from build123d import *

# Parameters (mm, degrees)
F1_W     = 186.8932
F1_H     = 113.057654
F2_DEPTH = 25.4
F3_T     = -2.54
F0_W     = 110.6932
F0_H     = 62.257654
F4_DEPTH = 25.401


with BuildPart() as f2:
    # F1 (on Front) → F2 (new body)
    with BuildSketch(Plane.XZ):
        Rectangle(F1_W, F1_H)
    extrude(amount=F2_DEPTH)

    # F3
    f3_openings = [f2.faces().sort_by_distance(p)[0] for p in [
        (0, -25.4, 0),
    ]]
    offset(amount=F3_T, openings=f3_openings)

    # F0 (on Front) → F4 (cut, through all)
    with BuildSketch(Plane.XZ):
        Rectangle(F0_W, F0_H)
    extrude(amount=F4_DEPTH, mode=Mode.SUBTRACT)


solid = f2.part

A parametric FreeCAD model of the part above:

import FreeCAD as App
import Part
import Sketcher

V = App.Vector
Q = App.Units.Quantity


def faces_at(feature, points):
    """Names of the faces that lie closest to the given points."""
    faces = feature.Shape.Faces
    near = lambda p: min(range(len(faces)), key=lambda i: faces[i].distToShape(Part.Vertex(*p))[0])
    return sorted({f"Face{near(p) + 1}" for p in points})


def add_polygon(sketch, points):
    """Adds a closed chain of lines whose ends are joined by coincident constraints."""
    first, n = sketch.GeometryCount, len(points)
    for a, b in zip(points, points[1:] + points[:1]):
        sketch.addGeometry(Part.LineSegment(App.Vector(*a, 0), App.Vector(*b, 0)), False)
    for i in range(n):
        sketch.addConstraint(Sketcher.Constraint("Coincident", first + i, 2, first + (i + 1) % n, 1))

doc = App.newDocument("Part")
body = doc.addObject("PartDesign::Body", "Body")

# Sketch on XZ plane
sketch1 = body.newObject("Sketcher::SketchObject", "Sketch")
sketch1.AttachmentSupport = (doc.getObject("XZ_Plane"), [""])
sketch1.MapMode = "FlatFace"
add_polygon(sketch1, [(-93, 57), (-93, -57), (93, -57), (93, 57)])  # lines 0-3
sketch1.addConstraint([
    Sketcher.Constraint("Vertical", 0),
    Sketcher.Constraint("Horizontal", 1),
    Sketcher.Constraint("Vertical", 2),
    Sketcher.Constraint("Horizontal", 3),
    Sketcher.Constraint("Symmetric", 0, 2, 2, 2, -1, 1),
    Sketcher.Constraint("DistanceX", 1, 1, 1, 2, Q("7.358 in")),
    Sketcher.Constraint("DistanceY", 0, 2, 0, 1, Q("113.057654 mm")),
])
pad1 = body.newObject("PartDesign::Pad", "Pad")
pad1.Profile = sketch1
pad1.Length = Q("1 in")
doc.recompute()

thickness = body.newObject("PartDesign::Thickness", "Thickness")
thickness.Base = (pad1, faces_at(pad1, [(0, -25.4, 0)]))
thickness.Value = Q("0.1 in")
thickness.Reversed = True
thickness.Join = "Arc"

# Sketch on XZ plane
sketch2 = body.newObject("Sketcher::SketchObject", "Sketch001")
sketch2.AttachmentSupport = (doc.getObject("XZ_Plane"), [""])
sketch2.MapMode = "FlatFace"
add_polygon(sketch2, [(-55, 31), (-55, -31), (55, -31), (55, 31)])  # lines 0-3
sketch2.addConstraint([
    Sketcher.Constraint("Vertical", 0),
    Sketcher.Constraint("Horizontal", 1),
    Sketcher.Constraint("Vertical", 2),
    Sketcher.Constraint("Horizontal", 3),
    Sketcher.Constraint("Symmetric", 0, 2, 2, 2, -1, 1),
    Sketcher.Constraint("DistanceX", 1, 1, 1, 2, Q("4.358 in")),
    Sketcher.Constraint("DistanceY", 0, 2, 0, 1, Q("62.257654 mm")),
])
pocket1 = body.newObject("PartDesign::Pocket", "Pocket")
pocket1.Profile = sketch2
pocket1.Type = "ThroughAll"
pocket1.Reversed = True

doc.recompute()
